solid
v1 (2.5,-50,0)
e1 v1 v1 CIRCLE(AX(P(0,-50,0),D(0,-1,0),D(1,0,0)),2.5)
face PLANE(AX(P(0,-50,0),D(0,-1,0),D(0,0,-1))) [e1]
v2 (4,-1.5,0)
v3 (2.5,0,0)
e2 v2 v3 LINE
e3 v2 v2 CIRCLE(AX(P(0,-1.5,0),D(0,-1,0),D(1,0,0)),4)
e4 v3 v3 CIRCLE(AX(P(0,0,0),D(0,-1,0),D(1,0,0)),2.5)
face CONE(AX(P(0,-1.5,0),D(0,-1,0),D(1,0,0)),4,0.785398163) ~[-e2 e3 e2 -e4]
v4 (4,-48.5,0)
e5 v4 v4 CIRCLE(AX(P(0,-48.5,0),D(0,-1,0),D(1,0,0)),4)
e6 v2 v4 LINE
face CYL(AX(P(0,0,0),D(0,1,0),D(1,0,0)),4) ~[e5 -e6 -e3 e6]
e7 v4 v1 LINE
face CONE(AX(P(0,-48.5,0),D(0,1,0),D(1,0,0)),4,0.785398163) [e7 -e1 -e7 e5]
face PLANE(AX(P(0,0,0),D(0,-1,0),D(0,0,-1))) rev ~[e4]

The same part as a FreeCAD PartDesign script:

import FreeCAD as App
import Part
import Sketcher

V = App.Vector
Q = App.Units.Quantity


def edges_at(feature, points):
    """Names of the edges that pass closest to the given points."""
    edges = feature.Shape.Edges
    near = lambda p: min(range(len(edges)), key=lambda i: edges[i].distToShape(Part.Vertex(*p))[0])
    return sorted({f"Edge{near(p) + 1}" for p in points})

doc = App.newDocument("Part")
body = doc.addObject("PartDesign::Body", "Body")

sketch1 = body.newObject("Sketcher::SketchObject", "Sketch")
sketch1.AttachmentSupport = (doc.getObject("XZ_Plane"), [""])
sketch1.MapMode = "FlatFace"
sketch1.addGeometry(Part.Circle(V(0, 0, 0), V(0, 0, 1), 4), False)
sketch1.addConstraint([
    Sketcher.Constraint("Coincident", 0, 3, -1, 1),
    Sketcher.Constraint("Diameter", 0, Q("8 mm")),
])
pad1 = body.newObject("PartDesign::Pad", "Pad")
pad1.Profile = sketch1
pad1.Length = 50
doc.recompute()

chamfer = body.newObject("PartDesign::Chamfer", "Chamfer")
chamfer.Base = (pad1, edges_at(pad1, [(-4, -50, 0), (-4, 0, 0)]))
chamfer.Size = 1.5

doc.recompute()
